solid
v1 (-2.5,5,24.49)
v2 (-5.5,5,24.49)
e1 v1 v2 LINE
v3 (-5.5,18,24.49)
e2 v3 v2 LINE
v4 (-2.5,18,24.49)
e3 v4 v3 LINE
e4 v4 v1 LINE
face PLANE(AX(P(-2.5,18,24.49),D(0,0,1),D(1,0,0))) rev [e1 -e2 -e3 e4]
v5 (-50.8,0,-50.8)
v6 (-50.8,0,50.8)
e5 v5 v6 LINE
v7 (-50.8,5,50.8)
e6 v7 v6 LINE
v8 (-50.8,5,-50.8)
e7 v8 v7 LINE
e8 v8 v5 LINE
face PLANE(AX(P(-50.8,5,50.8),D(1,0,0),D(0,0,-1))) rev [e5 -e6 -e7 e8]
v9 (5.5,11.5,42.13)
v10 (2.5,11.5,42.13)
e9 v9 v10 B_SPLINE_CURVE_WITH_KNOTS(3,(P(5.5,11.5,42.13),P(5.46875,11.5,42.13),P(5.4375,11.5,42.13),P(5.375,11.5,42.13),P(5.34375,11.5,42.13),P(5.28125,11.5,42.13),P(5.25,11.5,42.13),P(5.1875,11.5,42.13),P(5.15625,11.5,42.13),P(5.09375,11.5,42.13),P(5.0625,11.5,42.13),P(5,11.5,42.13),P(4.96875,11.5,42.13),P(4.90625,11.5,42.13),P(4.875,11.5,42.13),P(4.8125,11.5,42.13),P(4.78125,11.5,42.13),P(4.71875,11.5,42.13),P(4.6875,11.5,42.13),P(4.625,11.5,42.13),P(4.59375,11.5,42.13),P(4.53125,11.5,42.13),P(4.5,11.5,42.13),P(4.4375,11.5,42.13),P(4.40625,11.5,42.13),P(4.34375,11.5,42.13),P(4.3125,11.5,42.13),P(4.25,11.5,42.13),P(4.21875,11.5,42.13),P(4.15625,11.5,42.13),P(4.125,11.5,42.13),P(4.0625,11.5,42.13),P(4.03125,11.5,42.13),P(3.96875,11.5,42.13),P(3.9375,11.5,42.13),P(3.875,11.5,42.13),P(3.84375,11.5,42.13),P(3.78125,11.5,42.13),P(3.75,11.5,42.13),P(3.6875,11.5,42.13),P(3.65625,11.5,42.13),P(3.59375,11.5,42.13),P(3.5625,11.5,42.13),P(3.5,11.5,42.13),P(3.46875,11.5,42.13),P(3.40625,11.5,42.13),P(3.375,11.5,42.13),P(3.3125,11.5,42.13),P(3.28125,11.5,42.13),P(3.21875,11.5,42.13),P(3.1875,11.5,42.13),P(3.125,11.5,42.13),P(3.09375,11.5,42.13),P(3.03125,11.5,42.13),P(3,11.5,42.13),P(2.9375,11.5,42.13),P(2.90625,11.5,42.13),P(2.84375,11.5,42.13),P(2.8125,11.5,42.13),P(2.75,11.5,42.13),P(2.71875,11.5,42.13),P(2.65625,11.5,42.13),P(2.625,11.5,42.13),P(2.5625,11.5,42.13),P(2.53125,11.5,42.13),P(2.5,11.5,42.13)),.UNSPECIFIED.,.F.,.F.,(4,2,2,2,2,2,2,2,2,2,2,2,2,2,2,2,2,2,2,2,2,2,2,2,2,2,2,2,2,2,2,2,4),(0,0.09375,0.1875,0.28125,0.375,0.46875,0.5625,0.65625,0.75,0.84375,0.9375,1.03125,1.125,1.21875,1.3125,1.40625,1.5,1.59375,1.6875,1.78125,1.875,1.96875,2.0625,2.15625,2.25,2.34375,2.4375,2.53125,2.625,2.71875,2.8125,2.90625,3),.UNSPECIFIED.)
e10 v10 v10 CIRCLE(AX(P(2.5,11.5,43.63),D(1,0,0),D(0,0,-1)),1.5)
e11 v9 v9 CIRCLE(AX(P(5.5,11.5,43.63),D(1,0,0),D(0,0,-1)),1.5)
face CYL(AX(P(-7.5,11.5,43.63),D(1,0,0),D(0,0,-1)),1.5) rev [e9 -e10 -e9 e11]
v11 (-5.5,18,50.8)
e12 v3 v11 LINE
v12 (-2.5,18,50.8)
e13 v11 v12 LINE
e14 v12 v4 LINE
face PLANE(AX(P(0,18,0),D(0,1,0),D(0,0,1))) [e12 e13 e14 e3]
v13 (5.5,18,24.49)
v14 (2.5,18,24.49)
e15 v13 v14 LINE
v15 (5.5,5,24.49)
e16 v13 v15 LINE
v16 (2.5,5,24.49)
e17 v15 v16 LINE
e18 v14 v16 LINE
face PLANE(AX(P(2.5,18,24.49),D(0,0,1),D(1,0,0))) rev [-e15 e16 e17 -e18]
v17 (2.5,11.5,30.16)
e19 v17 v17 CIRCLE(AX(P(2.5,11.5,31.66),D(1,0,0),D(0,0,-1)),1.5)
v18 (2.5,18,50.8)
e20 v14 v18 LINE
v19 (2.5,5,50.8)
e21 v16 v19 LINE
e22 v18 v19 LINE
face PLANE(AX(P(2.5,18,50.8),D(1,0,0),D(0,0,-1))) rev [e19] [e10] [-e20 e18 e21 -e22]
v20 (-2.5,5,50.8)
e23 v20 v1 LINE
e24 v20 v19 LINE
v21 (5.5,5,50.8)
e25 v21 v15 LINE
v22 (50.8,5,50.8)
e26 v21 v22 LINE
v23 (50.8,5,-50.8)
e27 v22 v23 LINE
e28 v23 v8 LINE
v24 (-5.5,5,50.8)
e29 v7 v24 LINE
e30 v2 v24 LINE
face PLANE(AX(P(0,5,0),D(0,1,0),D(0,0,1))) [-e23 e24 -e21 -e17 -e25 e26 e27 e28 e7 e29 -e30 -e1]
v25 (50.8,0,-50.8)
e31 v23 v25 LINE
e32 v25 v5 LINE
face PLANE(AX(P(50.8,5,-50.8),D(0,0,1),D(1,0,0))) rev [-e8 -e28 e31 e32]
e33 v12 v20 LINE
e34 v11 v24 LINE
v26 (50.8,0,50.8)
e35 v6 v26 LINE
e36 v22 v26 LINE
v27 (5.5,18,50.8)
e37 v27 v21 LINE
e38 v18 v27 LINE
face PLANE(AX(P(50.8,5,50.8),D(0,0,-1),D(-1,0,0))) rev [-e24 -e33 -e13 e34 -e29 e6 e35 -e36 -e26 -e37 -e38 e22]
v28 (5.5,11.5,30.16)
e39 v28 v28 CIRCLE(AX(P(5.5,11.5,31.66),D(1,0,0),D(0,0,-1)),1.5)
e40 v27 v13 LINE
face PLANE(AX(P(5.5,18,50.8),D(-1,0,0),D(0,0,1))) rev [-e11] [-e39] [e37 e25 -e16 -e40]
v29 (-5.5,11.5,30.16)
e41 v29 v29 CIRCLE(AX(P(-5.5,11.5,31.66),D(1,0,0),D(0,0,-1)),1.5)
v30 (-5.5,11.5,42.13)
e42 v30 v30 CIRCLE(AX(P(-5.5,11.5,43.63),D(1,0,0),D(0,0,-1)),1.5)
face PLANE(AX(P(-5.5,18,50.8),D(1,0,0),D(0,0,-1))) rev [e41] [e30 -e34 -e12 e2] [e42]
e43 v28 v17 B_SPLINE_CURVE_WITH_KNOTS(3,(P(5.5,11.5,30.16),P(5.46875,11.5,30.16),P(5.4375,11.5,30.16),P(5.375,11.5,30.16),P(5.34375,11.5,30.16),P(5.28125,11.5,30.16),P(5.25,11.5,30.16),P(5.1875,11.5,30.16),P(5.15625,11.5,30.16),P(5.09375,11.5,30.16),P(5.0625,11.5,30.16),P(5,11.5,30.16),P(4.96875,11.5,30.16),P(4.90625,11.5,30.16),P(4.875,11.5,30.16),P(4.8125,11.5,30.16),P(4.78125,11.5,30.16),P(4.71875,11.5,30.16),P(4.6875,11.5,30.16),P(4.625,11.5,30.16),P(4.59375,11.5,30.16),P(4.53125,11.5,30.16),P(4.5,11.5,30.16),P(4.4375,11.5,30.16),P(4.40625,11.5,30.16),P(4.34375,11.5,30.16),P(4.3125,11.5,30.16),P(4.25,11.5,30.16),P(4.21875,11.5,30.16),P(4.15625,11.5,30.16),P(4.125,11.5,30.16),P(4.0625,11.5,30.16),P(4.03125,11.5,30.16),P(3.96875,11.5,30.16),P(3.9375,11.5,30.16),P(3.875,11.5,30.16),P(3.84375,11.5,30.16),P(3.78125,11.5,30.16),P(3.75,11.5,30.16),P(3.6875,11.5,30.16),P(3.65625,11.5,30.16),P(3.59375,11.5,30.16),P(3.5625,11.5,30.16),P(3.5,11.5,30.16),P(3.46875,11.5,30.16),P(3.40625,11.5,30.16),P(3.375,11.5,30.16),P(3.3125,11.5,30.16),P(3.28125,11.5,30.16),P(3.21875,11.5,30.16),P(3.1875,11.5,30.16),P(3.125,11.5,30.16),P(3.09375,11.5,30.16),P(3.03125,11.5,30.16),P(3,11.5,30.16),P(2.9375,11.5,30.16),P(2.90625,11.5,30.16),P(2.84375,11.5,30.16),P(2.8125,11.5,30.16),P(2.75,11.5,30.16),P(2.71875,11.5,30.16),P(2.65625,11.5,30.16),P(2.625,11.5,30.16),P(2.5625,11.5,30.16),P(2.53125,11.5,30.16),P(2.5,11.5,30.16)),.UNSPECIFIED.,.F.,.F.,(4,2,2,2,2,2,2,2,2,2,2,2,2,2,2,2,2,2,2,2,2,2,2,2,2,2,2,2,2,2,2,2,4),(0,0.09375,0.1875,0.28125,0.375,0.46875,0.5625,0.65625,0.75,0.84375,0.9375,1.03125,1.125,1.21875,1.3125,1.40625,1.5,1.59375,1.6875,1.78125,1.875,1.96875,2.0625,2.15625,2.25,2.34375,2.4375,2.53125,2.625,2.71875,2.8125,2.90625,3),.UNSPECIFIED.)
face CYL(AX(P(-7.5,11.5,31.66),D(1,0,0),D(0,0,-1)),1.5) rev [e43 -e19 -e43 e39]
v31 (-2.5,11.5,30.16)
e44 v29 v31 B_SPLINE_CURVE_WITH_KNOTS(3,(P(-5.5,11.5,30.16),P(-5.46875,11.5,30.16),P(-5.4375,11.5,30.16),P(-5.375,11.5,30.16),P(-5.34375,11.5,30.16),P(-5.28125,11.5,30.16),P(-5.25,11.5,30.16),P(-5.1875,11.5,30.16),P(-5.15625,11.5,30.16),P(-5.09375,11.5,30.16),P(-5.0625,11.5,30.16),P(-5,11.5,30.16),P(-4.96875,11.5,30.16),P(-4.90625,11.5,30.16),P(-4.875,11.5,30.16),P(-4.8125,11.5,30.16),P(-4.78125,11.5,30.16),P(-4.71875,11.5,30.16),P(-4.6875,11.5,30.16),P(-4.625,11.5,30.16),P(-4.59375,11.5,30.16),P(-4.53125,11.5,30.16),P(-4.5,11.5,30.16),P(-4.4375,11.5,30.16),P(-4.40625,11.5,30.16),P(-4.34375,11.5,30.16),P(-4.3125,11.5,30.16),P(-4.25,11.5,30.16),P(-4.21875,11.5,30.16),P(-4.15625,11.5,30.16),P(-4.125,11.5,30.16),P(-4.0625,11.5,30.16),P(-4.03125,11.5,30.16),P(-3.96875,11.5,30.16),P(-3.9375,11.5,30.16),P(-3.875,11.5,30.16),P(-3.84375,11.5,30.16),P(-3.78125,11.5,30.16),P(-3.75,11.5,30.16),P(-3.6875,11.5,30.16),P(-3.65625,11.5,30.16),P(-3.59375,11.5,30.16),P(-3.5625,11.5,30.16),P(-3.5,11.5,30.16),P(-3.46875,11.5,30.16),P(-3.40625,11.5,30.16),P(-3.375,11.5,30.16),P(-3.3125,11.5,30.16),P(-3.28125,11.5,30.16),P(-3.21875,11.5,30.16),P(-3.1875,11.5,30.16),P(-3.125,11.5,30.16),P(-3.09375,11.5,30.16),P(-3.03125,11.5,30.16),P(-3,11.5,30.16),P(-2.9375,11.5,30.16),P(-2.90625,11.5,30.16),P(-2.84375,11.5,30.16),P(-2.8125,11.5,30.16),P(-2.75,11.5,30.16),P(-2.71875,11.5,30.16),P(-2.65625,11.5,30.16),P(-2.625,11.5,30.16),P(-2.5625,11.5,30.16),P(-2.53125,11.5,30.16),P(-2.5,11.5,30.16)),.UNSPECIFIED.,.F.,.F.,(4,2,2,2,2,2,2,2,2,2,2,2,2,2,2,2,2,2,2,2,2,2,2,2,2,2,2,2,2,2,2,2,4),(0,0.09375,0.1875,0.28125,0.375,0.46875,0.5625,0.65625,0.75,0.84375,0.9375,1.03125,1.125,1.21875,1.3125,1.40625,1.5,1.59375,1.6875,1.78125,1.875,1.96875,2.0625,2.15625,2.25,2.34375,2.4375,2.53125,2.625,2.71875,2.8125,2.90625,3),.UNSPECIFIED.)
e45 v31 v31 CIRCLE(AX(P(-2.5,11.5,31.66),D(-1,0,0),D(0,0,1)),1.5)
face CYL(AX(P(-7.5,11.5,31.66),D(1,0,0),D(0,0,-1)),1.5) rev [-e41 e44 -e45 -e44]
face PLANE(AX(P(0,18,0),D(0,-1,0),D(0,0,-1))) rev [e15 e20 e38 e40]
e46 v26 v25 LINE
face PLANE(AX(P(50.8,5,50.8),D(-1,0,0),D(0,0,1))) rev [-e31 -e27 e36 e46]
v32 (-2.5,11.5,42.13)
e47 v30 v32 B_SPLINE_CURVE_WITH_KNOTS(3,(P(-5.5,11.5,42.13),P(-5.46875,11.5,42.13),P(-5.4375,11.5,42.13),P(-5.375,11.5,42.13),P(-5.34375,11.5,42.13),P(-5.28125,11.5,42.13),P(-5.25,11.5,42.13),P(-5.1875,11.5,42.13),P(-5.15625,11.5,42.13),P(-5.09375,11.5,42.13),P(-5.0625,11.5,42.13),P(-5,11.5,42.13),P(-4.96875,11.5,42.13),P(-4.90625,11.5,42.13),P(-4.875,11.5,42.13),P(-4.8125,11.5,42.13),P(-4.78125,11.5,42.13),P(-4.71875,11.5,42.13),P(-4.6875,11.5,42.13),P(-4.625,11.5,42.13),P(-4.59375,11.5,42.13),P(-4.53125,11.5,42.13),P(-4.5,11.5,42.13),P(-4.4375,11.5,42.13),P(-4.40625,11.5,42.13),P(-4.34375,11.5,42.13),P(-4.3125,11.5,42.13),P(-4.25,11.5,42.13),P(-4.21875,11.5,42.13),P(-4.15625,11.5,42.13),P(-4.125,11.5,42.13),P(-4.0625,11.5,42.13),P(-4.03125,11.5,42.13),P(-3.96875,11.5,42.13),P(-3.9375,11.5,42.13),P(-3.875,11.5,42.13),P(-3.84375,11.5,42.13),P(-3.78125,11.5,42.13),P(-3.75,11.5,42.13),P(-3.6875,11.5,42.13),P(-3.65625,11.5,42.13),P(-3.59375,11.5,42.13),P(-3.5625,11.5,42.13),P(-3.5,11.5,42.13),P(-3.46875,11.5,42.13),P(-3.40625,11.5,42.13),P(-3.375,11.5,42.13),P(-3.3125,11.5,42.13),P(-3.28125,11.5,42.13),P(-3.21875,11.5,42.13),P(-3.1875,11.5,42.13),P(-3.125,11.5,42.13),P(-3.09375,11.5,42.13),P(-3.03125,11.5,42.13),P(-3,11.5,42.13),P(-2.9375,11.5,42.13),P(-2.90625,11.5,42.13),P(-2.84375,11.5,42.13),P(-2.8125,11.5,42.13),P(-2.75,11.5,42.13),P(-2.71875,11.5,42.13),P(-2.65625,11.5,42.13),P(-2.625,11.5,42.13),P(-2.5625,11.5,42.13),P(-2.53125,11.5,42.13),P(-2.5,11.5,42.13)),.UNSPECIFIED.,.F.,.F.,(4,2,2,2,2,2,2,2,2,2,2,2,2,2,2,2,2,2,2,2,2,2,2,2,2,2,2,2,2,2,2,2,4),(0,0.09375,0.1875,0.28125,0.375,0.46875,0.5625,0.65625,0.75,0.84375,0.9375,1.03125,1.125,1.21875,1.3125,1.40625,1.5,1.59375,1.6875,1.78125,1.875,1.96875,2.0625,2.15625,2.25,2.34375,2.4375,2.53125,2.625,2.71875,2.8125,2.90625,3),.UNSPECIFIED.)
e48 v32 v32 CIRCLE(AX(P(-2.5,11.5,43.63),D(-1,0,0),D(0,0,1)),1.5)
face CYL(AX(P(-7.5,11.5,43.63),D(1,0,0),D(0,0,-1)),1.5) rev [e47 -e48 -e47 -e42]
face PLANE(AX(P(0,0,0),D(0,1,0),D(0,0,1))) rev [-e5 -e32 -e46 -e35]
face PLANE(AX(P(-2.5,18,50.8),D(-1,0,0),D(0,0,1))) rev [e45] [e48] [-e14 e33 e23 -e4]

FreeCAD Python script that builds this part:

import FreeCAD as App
import Part
import Sketcher
Q = App.Units.Quantity

doc = App.newDocument("Part")
body = doc.addObject("PartDesign::Body", "Body")

sketch1 = body.newObject("Sketcher::SketchObject", "Sketch")
sketch1.AttachmentSupport = (doc.getObject("XZ_Plane"), [""])
sketch1.MapMode = "FlatFace"
sketch1.addGeometry([
    Part.LineSegment(App.Vector(-51, -51, 0), App.Vector(-51, 51, 0)),
    Part.LineSegment(App.Vector(-51, 51, 0), App.Vector(51, 51, 0)),
    Part.LineSegment(App.Vector(51, 51, 0), App.Vector(51, -51, 0)),
    Part.LineSegment(App.Vector(51, -51, 0), App.Vector(-51, -51, 0)),
], False)
sketch1.addConstraint([
    Sketcher.Constraint("Coincident", 0, 2, 1, 1),
    Sketcher.Constraint("Coincident", 1, 2, 2, 1),
    Sketcher.Constraint("Coincident", 2, 2, 3, 1),
    Sketcher.Constraint("Coincident", 3, 2, 0, 1),
    Sketcher.Constraint("Vertical", 0),
    Sketcher.Constraint("Horizontal", 1),
    Sketcher.Constraint("Vertical", 2),
    Sketcher.Constraint("Horizontal", 3),
    Sketcher.Constraint("Symmetric", 0, 2, 2, 2, -1, 1),
    Sketcher.Constraint("Equal", 3, 0),
    Sketcher.Constraint("DistanceX", 1, 1, 1, 2, Q("101.6 mm")),
])
pad1 = body.newObject("PartDesign::Pad", "Pad")
pad1.Profile = sketch1
pad1.Length = 5
pad1.Reversed = True

sketch2 = body.newObject("Sketcher::SketchObject", "Sketch001")
sketch2.AttachmentSupport = (doc.getObject("XZ_Plane"), [""])
sketch2.MapMode = "FlatFace"
sketch2.AttachmentOffset = App.Placement(App.Vector(0, 0, -5), App.Rotation())
sketch2.addGeometry([
    Part.LineSegment(App.Vector(-5.5, 24.5, 0), App.Vector(-5.5, 50.8, 0)),
    Part.LineSegment(App.Vector(-5.5, 50.8, 0), App.Vector(-2.5, 50.8, 0)),
    Part.LineSegment(App.Vector(-2.5, 50.8, 0), App.Vector(-2.5, 24.5, 0)),
    Part.LineSegment(App.Vector(-2.5, 24.5, 0), App.Vector(-5.5, 24.5, 0)),
    Part.LineSegment(App.Vector(2.5, 24.5, 0), App.Vector(2.5, 50.8, 0)),
    Part.LineSegment(App.Vector(2.5, 50.8, 0), App.Vector(5.5, 50.8, 0)),
    Part.LineSegment(App.Vector(5.5, 50.8, 0), App.Vector(5.5, 24.5, 0)),
    Part.LineSegment(App.Vector(5.5, 24.5, 0), App.Vector(2.5, 24.5, 0)),
], False)
sketch2.addConstraint([
    Sketcher.Constraint("Coincident", 0, 2, 1, 1),
    Sketcher.Constraint("Coincident", 1, 2, 2, 1),
    Sketcher.Constraint("Coincident", 2, 2, 3, 1),
    Sketcher.Constraint("Coincident", 3, 2, 0, 1),
    Sketcher.Constraint("Coincident", 4, 2, 5, 1),
    Sketcher.Constraint("Coincident", 5, 2, 6, 1),
    Sketcher.Constraint("Coincident", 6, 2, 7, 1),
    Sketcher.Constraint("Coincident", 7, 2, 4, 1),
    Sketcher.Constraint("Vertical", 0),
    Sketcher.Constraint("Horizontal", 1),
    Sketcher.Constraint("Vertical", 2),
    Sketcher.Constraint("Horizontal", 3),
    Sketcher.Constraint("Vertical", 4),
    Sketcher.Constraint("Horizontal", 5),
    Sketcher.Constraint("Vertical", 6),
    Sketcher.Constraint("Horizontal", 7),
    Sketcher.Constraint("Symmetric", 1, 2, 4, 2, -2),
    Sketcher.Constraint("Symmetric", 3, 2, 6, 2, -2),
    Sketcher.Constraint("DistanceX", 1, 1, 1, 2, Q("3 mm")),
    Sketcher.Constraint("DistanceX", 1, 2, 4, 2, Q("5 mm")),
    Sketcher.Constraint("DistanceY", 0, 1, 0, 2, Q("26.31 mm")),
    Sketcher.Constraint("DistanceY", -1, 1, 0, 2, Q("50.8 mm")),
])
pad2 = body.newObject("PartDesign::Pad", "Pad001")
pad2.Profile = sketch2
pad2.Length = 13
pad2.Reversed = True

sketch3 = body.newObject("Sketcher::SketchObject", "Sketch002")
sketch3.AttachmentSupport = (doc.getObject("YZ_Plane"), [""])
sketch3.MapMode = "FlatFace"
sketch3.AttachmentOffset = App.Placement(App.Vector(0, 0, 5.5), App.Rotation())
sketch3.addGeometry([
    Part.Circle(App.Vector(11.5, 43.6, 0), App.Vector(0, 0, 1), 1.5),
    Part.Circle(App.Vector(11.5, 31.7, 0), App.Vector(0, 0, 1), 1.5),
], False)
sketch3.addConstraint([
    Sketcher.Constraint("Equal", 0, 1),
    Sketcher.Constraint("Vertical", 0, 3, 1, 3),
    Sketcher.Constraint("Diameter", 0, Q("3 mm")),
    Sketcher.Constraint("DistanceX", -1, 1, 0, 3, Q("11.5 mm")),
    Sketcher.Constraint("DistanceY", -1, 1, 0, 3, Q("43.63 mm")),
    Sketcher.Constraint("DistanceY", -1, 1, 1, 3, Q("31.66 mm")),
])
pocket1 = body.newObject("PartDesign::Pocket", "Pocket")
pocket1.Profile = sketch3
pocket1.Length = 13

doc.recompute()
